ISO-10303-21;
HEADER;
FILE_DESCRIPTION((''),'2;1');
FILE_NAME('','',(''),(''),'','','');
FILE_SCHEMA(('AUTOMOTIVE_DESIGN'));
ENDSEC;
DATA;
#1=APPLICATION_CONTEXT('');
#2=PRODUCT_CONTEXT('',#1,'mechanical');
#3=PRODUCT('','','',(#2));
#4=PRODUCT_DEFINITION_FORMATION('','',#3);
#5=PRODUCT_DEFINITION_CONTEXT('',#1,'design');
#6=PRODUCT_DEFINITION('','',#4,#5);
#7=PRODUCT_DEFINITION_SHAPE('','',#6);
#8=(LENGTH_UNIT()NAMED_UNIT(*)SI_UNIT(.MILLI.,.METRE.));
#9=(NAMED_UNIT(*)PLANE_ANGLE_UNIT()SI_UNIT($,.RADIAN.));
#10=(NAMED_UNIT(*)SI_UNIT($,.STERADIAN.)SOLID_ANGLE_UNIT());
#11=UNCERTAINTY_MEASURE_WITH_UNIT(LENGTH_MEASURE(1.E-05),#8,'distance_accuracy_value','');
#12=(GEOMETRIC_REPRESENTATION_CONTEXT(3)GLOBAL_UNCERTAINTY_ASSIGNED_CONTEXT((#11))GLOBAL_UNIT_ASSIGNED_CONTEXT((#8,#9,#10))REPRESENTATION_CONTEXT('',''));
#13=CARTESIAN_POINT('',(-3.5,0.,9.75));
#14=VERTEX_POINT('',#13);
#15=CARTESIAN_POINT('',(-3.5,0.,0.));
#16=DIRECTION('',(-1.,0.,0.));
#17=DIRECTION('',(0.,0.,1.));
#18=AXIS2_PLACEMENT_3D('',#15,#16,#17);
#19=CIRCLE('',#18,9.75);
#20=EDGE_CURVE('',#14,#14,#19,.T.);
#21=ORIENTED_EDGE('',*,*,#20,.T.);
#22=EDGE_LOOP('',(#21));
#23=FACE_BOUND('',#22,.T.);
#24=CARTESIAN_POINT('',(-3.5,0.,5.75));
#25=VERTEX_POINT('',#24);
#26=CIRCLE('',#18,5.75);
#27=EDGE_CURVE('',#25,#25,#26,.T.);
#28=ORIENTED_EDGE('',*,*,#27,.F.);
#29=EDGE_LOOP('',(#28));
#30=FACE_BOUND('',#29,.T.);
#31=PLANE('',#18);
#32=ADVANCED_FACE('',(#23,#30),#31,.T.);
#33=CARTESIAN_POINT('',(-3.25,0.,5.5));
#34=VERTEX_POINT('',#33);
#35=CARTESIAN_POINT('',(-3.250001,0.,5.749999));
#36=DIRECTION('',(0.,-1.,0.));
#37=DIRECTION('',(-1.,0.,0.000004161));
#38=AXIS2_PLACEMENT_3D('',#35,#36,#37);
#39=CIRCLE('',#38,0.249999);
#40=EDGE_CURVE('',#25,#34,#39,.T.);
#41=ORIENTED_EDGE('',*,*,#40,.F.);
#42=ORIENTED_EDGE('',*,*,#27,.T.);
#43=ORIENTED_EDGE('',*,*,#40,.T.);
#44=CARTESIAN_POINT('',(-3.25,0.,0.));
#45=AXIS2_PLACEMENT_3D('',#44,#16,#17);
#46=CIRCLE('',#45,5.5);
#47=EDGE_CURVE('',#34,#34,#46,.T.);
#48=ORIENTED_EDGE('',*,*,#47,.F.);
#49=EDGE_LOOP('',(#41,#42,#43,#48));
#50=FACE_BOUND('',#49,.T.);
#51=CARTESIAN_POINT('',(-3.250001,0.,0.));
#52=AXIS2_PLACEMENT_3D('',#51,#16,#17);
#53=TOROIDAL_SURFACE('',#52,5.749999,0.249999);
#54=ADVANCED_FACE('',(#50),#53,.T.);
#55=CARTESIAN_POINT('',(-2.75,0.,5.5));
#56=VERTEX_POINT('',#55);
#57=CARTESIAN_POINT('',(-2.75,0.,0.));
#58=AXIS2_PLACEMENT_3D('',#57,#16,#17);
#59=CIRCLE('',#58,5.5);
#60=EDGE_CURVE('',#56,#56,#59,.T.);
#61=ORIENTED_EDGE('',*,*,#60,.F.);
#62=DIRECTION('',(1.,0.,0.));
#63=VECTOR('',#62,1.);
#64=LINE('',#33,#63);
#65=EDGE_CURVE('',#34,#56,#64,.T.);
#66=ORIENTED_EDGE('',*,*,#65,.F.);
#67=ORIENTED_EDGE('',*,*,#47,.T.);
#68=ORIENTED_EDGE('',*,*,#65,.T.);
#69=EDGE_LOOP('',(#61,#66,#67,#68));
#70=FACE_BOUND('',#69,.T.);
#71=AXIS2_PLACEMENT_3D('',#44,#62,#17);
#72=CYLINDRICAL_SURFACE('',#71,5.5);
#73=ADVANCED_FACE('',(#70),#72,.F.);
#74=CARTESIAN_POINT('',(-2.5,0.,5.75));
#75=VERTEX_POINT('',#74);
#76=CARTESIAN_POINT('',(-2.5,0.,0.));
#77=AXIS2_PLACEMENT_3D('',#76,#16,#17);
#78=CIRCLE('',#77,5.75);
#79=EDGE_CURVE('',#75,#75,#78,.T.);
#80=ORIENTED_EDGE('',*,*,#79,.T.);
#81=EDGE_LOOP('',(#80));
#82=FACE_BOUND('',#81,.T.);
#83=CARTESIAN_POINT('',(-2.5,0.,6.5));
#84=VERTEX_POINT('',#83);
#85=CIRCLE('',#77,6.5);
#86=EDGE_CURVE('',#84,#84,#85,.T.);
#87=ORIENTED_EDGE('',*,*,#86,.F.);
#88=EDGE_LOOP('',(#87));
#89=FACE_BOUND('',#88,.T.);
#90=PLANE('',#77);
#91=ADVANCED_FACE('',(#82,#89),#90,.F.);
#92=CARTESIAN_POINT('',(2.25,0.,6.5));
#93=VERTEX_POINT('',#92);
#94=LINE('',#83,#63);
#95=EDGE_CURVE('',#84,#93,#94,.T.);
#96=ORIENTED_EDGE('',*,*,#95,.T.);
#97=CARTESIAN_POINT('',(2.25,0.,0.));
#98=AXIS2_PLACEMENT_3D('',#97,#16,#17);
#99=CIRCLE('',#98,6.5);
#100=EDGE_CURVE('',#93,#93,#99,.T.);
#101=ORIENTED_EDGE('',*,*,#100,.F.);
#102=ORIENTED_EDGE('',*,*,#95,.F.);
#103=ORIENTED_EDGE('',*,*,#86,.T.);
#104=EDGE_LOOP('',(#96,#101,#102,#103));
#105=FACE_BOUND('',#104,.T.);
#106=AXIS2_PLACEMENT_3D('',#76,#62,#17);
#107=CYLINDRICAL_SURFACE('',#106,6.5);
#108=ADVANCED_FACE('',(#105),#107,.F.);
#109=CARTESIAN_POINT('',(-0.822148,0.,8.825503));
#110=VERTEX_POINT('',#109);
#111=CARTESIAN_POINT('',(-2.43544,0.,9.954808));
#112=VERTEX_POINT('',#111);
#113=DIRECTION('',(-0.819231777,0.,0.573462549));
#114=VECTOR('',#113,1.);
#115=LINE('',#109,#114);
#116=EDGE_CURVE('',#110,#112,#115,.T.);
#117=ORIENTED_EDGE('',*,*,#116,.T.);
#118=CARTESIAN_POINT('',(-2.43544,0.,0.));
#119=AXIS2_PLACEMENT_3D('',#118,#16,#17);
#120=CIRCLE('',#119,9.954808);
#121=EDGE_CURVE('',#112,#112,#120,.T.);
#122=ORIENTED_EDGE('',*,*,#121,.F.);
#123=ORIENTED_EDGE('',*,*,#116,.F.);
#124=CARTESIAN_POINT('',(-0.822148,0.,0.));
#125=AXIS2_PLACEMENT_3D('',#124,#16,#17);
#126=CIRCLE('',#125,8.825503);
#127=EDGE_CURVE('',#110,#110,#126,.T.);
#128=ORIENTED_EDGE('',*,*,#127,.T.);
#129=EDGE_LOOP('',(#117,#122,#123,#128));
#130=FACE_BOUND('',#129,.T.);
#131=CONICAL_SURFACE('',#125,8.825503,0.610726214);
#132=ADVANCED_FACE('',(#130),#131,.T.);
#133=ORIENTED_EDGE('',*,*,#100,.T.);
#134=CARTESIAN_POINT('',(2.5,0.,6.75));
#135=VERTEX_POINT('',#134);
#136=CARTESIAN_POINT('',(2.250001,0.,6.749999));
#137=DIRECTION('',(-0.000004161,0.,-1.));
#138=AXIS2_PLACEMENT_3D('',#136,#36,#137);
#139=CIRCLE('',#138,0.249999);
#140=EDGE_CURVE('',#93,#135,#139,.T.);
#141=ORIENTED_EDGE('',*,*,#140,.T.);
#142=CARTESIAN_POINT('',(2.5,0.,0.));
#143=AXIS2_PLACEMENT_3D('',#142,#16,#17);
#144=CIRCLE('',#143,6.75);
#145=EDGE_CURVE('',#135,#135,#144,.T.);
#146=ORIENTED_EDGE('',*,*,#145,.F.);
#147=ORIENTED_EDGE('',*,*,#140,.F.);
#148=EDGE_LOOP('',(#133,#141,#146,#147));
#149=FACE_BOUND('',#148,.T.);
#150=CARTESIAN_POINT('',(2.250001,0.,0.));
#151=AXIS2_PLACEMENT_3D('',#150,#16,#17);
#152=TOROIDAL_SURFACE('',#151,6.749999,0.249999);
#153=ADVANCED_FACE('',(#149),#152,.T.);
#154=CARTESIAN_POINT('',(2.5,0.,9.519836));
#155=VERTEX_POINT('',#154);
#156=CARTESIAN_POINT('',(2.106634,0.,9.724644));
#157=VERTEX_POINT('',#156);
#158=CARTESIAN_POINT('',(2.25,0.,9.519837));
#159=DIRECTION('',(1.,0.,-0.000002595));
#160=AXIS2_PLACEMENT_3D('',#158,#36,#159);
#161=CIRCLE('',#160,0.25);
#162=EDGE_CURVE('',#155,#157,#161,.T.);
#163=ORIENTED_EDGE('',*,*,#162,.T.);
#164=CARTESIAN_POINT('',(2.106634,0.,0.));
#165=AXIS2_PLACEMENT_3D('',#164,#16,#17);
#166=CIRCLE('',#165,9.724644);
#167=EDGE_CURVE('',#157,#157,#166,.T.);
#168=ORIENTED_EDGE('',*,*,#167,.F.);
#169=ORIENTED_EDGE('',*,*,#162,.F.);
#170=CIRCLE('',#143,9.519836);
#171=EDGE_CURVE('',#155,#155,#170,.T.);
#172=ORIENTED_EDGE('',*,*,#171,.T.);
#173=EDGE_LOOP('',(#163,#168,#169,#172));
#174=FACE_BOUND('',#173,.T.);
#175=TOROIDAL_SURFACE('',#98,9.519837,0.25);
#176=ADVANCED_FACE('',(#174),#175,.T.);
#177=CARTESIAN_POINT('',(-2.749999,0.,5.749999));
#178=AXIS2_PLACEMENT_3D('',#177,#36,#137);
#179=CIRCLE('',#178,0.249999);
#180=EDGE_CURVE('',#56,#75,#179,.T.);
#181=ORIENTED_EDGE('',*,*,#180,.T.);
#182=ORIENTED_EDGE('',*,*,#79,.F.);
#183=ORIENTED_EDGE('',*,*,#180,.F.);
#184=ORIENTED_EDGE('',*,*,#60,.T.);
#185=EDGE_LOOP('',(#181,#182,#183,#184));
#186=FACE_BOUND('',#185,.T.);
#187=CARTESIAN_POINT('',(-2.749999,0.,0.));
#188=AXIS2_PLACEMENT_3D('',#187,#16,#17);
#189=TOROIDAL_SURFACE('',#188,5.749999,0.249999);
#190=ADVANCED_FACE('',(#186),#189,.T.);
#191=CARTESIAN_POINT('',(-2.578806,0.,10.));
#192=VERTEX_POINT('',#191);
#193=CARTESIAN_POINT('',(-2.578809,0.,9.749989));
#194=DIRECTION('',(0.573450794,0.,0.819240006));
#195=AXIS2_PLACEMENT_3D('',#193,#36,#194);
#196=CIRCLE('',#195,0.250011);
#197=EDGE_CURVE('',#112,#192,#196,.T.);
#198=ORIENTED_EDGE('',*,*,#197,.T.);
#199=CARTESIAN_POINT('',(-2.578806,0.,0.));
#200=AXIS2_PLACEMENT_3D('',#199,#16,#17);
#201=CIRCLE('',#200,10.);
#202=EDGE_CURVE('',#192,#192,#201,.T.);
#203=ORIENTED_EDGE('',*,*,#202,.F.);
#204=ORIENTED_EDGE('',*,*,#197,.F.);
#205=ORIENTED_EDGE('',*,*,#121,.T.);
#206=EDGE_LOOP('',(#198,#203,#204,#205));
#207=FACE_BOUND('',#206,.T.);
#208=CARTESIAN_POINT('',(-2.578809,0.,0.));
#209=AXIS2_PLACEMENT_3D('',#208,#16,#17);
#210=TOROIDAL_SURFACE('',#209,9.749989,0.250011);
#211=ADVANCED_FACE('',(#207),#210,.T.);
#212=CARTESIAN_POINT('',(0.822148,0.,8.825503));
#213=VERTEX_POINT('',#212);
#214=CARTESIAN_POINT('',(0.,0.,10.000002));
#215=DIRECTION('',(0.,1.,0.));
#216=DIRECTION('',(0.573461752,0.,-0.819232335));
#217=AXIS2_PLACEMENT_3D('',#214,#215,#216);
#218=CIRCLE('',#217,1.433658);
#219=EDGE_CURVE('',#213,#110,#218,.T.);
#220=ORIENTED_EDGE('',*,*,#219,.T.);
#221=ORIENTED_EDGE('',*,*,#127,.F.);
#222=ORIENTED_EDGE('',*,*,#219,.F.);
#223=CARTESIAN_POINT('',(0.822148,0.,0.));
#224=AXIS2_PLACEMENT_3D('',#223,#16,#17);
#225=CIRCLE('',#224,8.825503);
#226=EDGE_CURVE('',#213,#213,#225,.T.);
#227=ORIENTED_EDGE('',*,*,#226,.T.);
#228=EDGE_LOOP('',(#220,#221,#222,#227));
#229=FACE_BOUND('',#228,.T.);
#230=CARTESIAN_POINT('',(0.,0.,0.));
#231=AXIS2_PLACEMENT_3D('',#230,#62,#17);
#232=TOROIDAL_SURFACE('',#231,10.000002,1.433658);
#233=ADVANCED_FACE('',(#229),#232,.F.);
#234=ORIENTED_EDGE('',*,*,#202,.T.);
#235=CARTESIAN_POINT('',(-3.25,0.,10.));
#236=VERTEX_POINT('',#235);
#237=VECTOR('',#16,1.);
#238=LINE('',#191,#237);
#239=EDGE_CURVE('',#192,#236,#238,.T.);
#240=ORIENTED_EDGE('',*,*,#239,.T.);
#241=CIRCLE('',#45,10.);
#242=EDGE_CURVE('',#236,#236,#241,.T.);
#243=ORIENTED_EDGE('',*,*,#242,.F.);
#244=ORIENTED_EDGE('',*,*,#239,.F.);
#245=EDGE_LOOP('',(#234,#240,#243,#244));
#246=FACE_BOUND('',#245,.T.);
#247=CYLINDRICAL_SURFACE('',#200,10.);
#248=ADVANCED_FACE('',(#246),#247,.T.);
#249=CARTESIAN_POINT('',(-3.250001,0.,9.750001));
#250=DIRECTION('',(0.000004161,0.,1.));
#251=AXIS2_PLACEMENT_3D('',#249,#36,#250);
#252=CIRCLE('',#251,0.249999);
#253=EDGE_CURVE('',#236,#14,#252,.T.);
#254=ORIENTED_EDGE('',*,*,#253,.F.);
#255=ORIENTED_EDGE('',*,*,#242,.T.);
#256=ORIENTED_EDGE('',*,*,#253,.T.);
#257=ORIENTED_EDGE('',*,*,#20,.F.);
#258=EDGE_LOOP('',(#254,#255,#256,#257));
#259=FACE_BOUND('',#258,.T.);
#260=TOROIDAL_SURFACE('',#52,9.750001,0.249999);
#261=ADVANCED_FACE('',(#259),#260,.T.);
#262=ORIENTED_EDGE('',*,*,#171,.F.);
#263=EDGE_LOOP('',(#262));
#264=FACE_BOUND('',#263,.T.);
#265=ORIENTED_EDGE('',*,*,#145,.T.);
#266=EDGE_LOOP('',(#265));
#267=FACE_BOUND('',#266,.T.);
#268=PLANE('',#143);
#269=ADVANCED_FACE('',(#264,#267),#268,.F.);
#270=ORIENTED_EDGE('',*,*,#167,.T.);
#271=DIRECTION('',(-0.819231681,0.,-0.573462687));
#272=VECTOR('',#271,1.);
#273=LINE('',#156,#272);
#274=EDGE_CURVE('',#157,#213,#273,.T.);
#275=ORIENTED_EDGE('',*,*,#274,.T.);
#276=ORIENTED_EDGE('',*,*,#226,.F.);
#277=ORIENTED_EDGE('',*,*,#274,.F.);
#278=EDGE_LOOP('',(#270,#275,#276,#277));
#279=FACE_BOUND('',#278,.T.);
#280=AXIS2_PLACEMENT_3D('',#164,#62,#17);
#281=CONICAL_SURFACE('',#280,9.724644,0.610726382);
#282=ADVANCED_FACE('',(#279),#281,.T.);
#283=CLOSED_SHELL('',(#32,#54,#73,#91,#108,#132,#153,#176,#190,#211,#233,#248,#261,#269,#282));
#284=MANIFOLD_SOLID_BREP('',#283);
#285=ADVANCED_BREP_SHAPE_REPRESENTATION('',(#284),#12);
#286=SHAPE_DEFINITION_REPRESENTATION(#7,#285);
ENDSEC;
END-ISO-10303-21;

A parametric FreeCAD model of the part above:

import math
import FreeCAD as App
import Part
import Sketcher

V = App.Vector

doc = App.newDocument("Part")
params = doc.addObject("Spreadsheet::Sheet", "Params")
for row, (alias, value) in enumerate([
    ("sketch1_height", "4 mm"),
    ("sketch1_radius", "0.249999 mm"),
    ("sketch1_width", "0.5 mm"),
    ("revolution_angle", "360 deg"),
], start=1):
    params.set(f"A{row}", alias)
    params.set(f"B{row}", "=" + value)
    params.setAlias(f"B{row}", alias)

body = doc.addObject("PartDesign::Body", "Body")

sketch1 = doc.addObject("Sketcher::SketchObject", "Sketch")
body.addObject(sketch1)
sketch1.AttachmentSupport = (doc.XZ_Plane, [""])
sketch1.MapMode = "FlatFace"
sketch1.addGeometry([
    Part.LineSegment(V(-2.5, 5.75, 0), V(-2.5, 6.5, 0)),
    Part.LineSegment(V(-2.5, 6.5, 0), V(2.25, 6.5, 0)),
    Part.ArcOfCircle(Part.Circle(V(2.25, 6.75, 0), V(0, 0, 1), 0.25), math.radians(-90), math.radians(0)),
    Part.LineSegment(V(2.5, 6.75, 0), V(2.5, 9.52, 0)),
    Part.ArcOfCircle(Part.Circle(V(2.25, 9.52, 0), V(0, 0, 1), 0.25), math.radians(0), math.radians(125)),
    Part.LineSegment(V(2.11, 9.72, 0), V(0.82, 8.83, 0)),
    Part.ArcOfCircle(Part.Circle(V(0, 10, 0), V(0, 0, 1), 1.43), math.radians(-125), math.radians(-55)),
    Part.LineSegment(V(-0.82, 8.83, 0), V(-2.44, 9.95, 0)),
    Part.ArcOfCircle(Part.Circle(V(-2.58, 9.75, 0), V(0, 0, 1), 0.25), math.radians(55), math.radians(90)),
    Part.LineSegment(V(-2.58, 10, 0), V(-3.25, 10, 0)),
    Part.ArcOfCircle(Part.Circle(V(-3.25, 9.75, 0), V(0, 0, 1), 0.25), math.radians(90), math.radians(180)),
    Part.LineSegment(V(-3.5, 9.75, 0), V(-3.5, 5.75, 0)),
    Part.ArcOfCircle(Part.Circle(V(-3.25, 5.75, 0), V(0, 0, 1), 0.25), math.radians(180), math.radians(270)),
    Part.LineSegment(V(-3.25, 5.5, 0), V(-2.75, 5.5, 0)),
    Part.ArcOfCircle(Part.Circle(V(-2.75, 5.75, 0), V(0, 0, 1), 0.25), math.radians(-90), math.radians(0)),
], False)
sketch1.addConstraint([
    Sketcher.Constraint("Coincident", 0, 2, 1, 1),
    Sketcher.Constraint("Coincident", 1, 2, 2, 1),
    Sketcher.Constraint("Coincident", 2, 2, 3, 1),
    Sketcher.Constraint("Coincident", 3, 2, 4, 1),
    Sketcher.Constraint("Coincident", 4, 2, 5, 1),
    Sketcher.Constraint("Tangent", 5, 2, 6, 2),
    Sketcher.Constraint("Tangent", 6, 1, 7, 1),
    Sketcher.Constraint("Coincident", 7, 2, 8, 1),
    Sketcher.Constraint("Coincident", 8, 2, 9, 1),
    Sketcher.Constraint("Coincident", 9, 2, 10, 1),
    Sketcher.Constraint("Coincident", 10, 2, 11, 1),
    Sketcher.Constraint("Coincident", 11, 2, 12, 1),
    Sketcher.Constraint("Coincident", 12, 2, 13, 1),
    Sketcher.Constraint("Coincident", 13, 2, 14, 1),
    Sketcher.Constraint("Coincident", 14, 2, 0, 1),
    Sketcher.Constraint("Vertical", 0),
    Sketcher.Constraint("Horizontal", 1),
    Sketcher.Constraint("Vertical", 3),
    Sketcher.Constraint("Horizontal", 9),
    Sketcher.Constraint("Vertical", 11),
    Sketcher.Constraint("Horizontal", 13),
    Sketcher.Constraint("Equal", 2, 4),
    Sketcher.Constraint("Equal", 4, 10),
    Sketcher.Constraint("Equal", 10, 12),
    Sketcher.Constraint("Equal", 12, 14),
    Sketcher.Constraint("Symmetric", 5, 2, 6, 1, -2),
    Sketcher.Constraint("Horizontal", 4, 3, 3, 2),
    Sketcher.Constraint("Horizontal", 6, 3, 8, 2),
    Sketcher.Constraint("Horizontal", 14, 3, 11, 2),
    Sketcher.Constraint("Horizontal", 11, 2, 14, 2),
    Sketcher.Constraint("Vertical", 4, 3, 1, 2),
    Sketcher.Constraint("Vertical", 12, 3, 9, 2),
    Sketcher.Constraint("Vertical", 9, 2, 12, 2),
    Sketcher.Constraint("Vertical", 14, 3, 13, 2),
    Sketcher.Constraint("DistanceY", 11, 2, 11, 1, 4.0),
    Sketcher.Constraint("Radius", 2, 0.249999),
    Sketcher.Constraint("DistanceX", 13, 1, 13, 2, 0.5),
    Sketcher.Constraint("DistanceY", -1, 1, 6, 3, 10.000002),
    Sketcher.Constraint("DistanceY", 12, 3, 2, 3, 1.0),
    Sketcher.Constraint("DistanceX", 14, 3, 2, 3, 5.0),
    Sketcher.Constraint("DistanceY", 11, 2, 10, 3, 4.000001),
    Sketcher.Constraint("DistanceX", 0, 2, -1, 1, 2.5),
    Sketcher.Constraint("DistanceY", -1, 1, 2, 2, 6.75),
    Sketcher.Constraint("Radius", 8, 0.250011),
    Sketcher.Constraint("Radius", 6, 1.433658),
    Sketcher.Constraint("DistanceY", 5, 2, 6, 3, 1.174499),
    Sketcher.Constraint("DistanceX", 9, 2, 9, 1, 0.671194),
    Sketcher.Constraint("DistanceX", 7, 2, -1, 1, 2.43544),
    Sketcher.Constraint("DistanceY", 5, 2, 4, 2, 0.899141),
])
sketch1.setExpression("Constraints[34]", "Params.sketch1_height")
sketch1.setExpression("Constraints[35]", "Params.sketch1_radius")
sketch1.setExpression("Constraints[36]", "Params.sketch1_width")
revolution = doc.addObject("PartDesign::Revolution", "Revolution")
body.addObject(revolution)
revolution.Profile = sketch1
revolution.ReferenceAxis = (sketch1, ["H_Axis"])
revolution.setExpression("Angle", "Params.revolution_angle")

doc.recompute()
